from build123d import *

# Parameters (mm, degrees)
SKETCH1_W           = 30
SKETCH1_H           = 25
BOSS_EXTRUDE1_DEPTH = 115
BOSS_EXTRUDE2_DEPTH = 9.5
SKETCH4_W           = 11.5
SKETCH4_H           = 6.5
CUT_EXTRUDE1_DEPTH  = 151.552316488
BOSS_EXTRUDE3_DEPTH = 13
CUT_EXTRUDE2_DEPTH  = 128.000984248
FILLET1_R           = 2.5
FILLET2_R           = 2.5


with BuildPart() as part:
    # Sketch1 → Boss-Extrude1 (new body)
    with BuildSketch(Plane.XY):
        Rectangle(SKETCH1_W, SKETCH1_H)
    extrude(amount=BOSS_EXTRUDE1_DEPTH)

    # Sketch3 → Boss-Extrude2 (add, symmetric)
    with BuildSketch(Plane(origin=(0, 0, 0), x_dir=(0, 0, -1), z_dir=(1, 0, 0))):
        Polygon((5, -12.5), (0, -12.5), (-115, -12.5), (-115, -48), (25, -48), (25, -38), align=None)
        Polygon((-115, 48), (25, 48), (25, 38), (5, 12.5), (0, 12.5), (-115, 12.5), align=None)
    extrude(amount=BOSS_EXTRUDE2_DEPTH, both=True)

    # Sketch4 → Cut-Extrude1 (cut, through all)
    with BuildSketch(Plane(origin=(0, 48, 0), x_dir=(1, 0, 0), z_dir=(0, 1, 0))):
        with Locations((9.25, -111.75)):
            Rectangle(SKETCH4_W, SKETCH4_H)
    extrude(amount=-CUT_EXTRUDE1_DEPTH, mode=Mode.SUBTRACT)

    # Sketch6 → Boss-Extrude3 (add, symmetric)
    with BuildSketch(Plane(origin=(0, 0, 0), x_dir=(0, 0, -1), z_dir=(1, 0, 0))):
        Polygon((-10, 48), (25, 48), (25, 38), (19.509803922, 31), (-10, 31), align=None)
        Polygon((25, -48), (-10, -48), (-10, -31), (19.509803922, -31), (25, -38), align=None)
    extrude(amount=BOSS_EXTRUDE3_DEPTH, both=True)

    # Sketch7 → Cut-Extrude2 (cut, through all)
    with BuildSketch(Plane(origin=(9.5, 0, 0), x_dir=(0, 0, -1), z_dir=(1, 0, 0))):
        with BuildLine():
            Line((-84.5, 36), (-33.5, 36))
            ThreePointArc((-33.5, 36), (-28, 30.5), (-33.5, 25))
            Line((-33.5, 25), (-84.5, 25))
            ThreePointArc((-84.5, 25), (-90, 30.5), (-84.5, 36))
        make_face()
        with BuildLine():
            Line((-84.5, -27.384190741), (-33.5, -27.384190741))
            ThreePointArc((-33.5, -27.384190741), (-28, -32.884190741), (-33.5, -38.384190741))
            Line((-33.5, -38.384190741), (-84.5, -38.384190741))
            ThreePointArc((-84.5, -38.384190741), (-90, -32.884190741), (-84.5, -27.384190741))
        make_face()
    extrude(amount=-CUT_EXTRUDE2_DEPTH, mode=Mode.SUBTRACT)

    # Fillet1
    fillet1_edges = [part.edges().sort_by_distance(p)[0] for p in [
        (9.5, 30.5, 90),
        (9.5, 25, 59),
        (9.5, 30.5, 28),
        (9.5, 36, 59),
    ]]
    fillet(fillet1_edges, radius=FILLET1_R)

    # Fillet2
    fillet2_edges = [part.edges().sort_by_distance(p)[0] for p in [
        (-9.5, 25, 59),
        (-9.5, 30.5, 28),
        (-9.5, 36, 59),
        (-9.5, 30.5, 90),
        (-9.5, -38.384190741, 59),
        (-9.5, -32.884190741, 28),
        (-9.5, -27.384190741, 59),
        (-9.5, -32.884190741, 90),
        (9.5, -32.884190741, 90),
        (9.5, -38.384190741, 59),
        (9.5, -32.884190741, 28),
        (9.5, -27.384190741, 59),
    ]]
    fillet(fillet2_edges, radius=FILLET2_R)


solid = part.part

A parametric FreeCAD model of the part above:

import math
import FreeCAD as App
import Part
import Sketcher

V = App.Vector


def edges_at(feature, points):
    """Names of the edges that pass closest to the given points."""
    edges = feature.Shape.Edges
    near = lambda p: min(range(len(edges)), key=lambda i: edges[i].distToShape(Part.Vertex(*p))[0])
    return sorted({f"Edge{near(p) + 1}" for p in points})

doc = App.newDocument("Part")
body = doc.addObject("PartDesign::Body", "Body")

# Sketch on XY plane
sketch1 = doc.addObject("Sketcher::SketchObject", "Sketch")
body.addObject(sketch1)
sketch1.AttachmentSupport = (doc.XY_Plane, [""])
sketch1.MapMode = "FlatFace"
sketch1.addGeometry(Part.LineSegment(V(-15, 12, 0), V(-15, -12, 0)), False)
sketch1.addGeometry(Part.LineSegment(V(-15, -12, 0), V(15, -12, 0)), False)
sketch1.addGeometry(Part.LineSegment(V(15, -12, 0), V(15, 12, 0)), False)
sketch1.addGeometry(Part.LineSegment(V(15, 12, 0), V(-15, 12, 0)), False)
sketch1.addConstraint(Sketcher.Constraint("Coincident", 0, 2, 1, 1))
sketch1.addConstraint(Sketcher.Constraint("Coincident", 1, 2, 2, 1))
sketch1.addConstraint(Sketcher.Constraint("Coincident", 2, 2, 3, 1))
sketch1.addConstraint(Sketcher.Constraint("Coincident", 3, 2, 0, 1))
sketch1.addConstraint(Sketcher.Constraint("Vertical", 0))
sketch1.addConstraint(Sketcher.Constraint("Horizontal", 1))
sketch1.addConstraint(Sketcher.Constraint("Vertical", 2))
sketch1.addConstraint(Sketcher.Constraint("Horizontal", 3))
sketch1.addConstraint(Sketcher.Constraint("Symmetric", 0, 2, 2, 2, -1, 1))
sketch1.addConstraint(Sketcher.Constraint("DistanceX", 1, 1, 1, 2, 30.0))
sketch1.addConstraint(Sketcher.Constraint("DistanceY", 0, 2, 0, 1, 25.0))
pad1 = doc.addObject("PartDesign::Pad", "Pad")
body.addObject(pad1)
pad1.Profile = sketch1
pad1.Length = 115

# Sketch on YZ plane
sketch2 = doc.addObject("Sketcher::SketchObject", "Sketch001")
body.addObject(sketch2)
sketch2.AttachmentSupport = (doc.YZ_Plane, [""])
sketch2.MapMode = "FlatFace"
sketch2.addGeometry(Part.LineSegment(V(-12, -5, 0), V(-12, 115, 0)), False)
sketch2.addGeometry(Part.LineSegment(V(-12, 115, 0), V(-48, 115, 0)), False)
sketch2.addGeometry(Part.LineSegment(V(-48, 115, 0), V(-48, -25, 0)), False)
sketch2.addGeometry(Part.LineSegment(V(-48, -25, 0), V(-38, -25, 0)), False)
sketch2.addGeometry(Part.LineSegment(V(-38, -25, 0), V(-12, -5, 0)), False)
sketch2.addGeometry(Part.LineSegment(V(48, -25, 0), V(48, 115, 0)), False)
sketch2.addGeometry(Part.LineSegment(V(48, 115, 0), V(12, 115, 0)), False)
sketch2.addGeometry(Part.LineSegment(V(12, 115, 0), V(12, -5, 0)), False)
sketch2.addGeometry(Part.LineSegment(V(12, -5, 0), V(38, -25, 0)), False)
sketch2.addGeometry(Part.LineSegment(V(38, -25, 0), V(48, -25, 0)), False)
sketch2.addConstraint(Sketcher.Constraint("Coincident", 0, 2, 1, 1))
sketch2.addConstraint(Sketcher.Constraint("Coincident", 1, 2, 2, 1))
sketch2.addConstraint(Sketcher.Constraint("Coincident", 2, 2, 3, 1))
sketch2.addConstraint(Sketcher.Constraint("Coincident", 3, 2, 4, 1))
sketch2.addConstraint(Sketcher.Constraint("Coincident", 4, 2, 0, 1))
sketch2.addConstraint(Sketcher.Constraint("Coincident", 5, 2, 6, 1))
sketch2.addConstraint(Sketcher.Constraint("Coincident", 6, 2, 7, 1))
sketch2.addConstraint(Sketcher.Constraint("Coincident", 7, 2, 8, 1))
sketch2.addConstraint(Sketcher.Constraint("Coincident", 8, 2, 9, 1))
sketch2.addConstraint(Sketcher.Constraint("Coincident", 9, 2, 5, 1))
sketch2.addConstraint(Sketcher.Constraint("Vertical", 0))
sketch2.addConstraint(Sketcher.Constraint("Horizontal", 1))
sketch2.addConstraint(Sketcher.Constraint("Vertical", 2))
sketch2.addConstraint(Sketcher.Constraint("Horizontal", 3))
sketch2.addConstraint(Sketcher.Constraint("Vertical", 5))
sketch2.addConstraint(Sketcher.Constraint("Horizontal", 6))
sketch2.addConstraint(Sketcher.Constraint("Vertical", 7))
sketch2.addConstraint(Sketcher.Constraint("Horizontal", 9))
sketch2.addConstraint(Sketcher.Constraint("Symmetric", 1, 2, 5, 2, -2))
sketch2.addConstraint(Sketcher.Constraint("Symmetric", 4, 2, 7, 2, -2))
sketch2.addConstraint(Sketcher.Constraint("Symmetric", 3, 2, 8, 2, -2))
sketch2.addConstraint(Sketcher.Constraint("DistanceX", 3, 1, 3, 2, 10.0))
sketch2.addConstraint(Sketcher.Constraint("DistanceY", 0, 1, 0, 2, 120.0))
sketch2.addConstraint(Sketcher.Constraint("DistanceY", 2, 2, 2, 1, 140.0))
sketch2.addConstraint(Sketcher.Constraint("DistanceX", 1, 2, 1, 1, 35.5))
sketch2.addConstraint(Sketcher.Constraint("DistanceY", -1, 1, 0, 2, 115.0))
sketch2.addConstraint(Sketcher.Constraint("DistanceX", 1, 2, -1, 1, 48.0))
pad2 = doc.addObject("PartDesign::Pad", "Pad001")
body.addObject(pad2)
pad2.Profile = sketch2
pad2.Length = 19
pad2.Midplane = True

# Sketch on XZ plane
sketch3 = doc.addObject("Sketcher::SketchObject", "Sketch002")
body.addObject(sketch3)
sketch3.AttachmentSupport = (doc.XZ_Plane, [""])
sketch3.MapMode = "FlatFace"
sketch3.AttachmentOffset = App.Placement(V(0, 0, -48), App.Rotation())
sketch3.addGeometry(Part.LineSegment(V(4, 108, 0), V(4, 115, 0)), False)
sketch3.addGeometry(Part.LineSegment(V(4, 115, 0), V(15, 115, 0)), False)
sketch3.addGeometry(Part.LineSegment(V(15, 115, 0), V(15, 108, 0)), False)
sketch3.addGeometry(Part.LineSegment(V(15, 108, 0), V(4, 108, 0)), False)
sketch3.addConstraint(Sketcher.Constraint("Coincident", 0, 2, 1, 1))
sketch3.addConstraint(Sketcher.Constraint("Coincident", 1, 2, 2, 1))
sketch3.addConstraint(Sketcher.Constraint("Coincident", 2, 2, 3, 1))
sketch3.addConstraint(Sketcher.Constraint("Coincident", 3, 2, 0, 1))
sketch3.addConstraint(Sketcher.Constraint("Vertical", 0))
sketch3.addConstraint(Sketcher.Constraint("Horizontal", 1))
sketch3.addConstraint(Sketcher.Constraint("Vertical", 2))
sketch3.addConstraint(Sketcher.Constraint("Horizontal", 3))
sketch3.addConstraint(Sketcher.Constraint("DistanceX", 1, 1, 1, 2, 11.5))
sketch3.addConstraint(Sketcher.Constraint("DistanceY", 0, 1, 0, 2, 6.5))
sketch3.addConstraint(Sketcher.Constraint("DistanceY", -1, 1, 0, 2, 115.0))
sketch3.addConstraint(Sketcher.Constraint("DistanceX", -1, 1, 1, 2, 15.0))
pocket1 = doc.addObject("PartDesign::Pocket", "Pocket")
body.addObject(pocket1)
pocket1.Profile = sketch3
pocket1.Type = "ThroughAll"
pocket1.Reversed = True

# Sketch on YZ plane
sketch4 = doc.addObject("Sketcher::SketchObject", "Sketch003")
body.addObject(sketch4)
sketch4.AttachmentSupport = (doc.YZ_Plane, [""])
sketch4.MapMode = "FlatFace"
sketch4.addGeometry(Part.LineSegment(V(48, -25, 0), V(48, 10, 0)), False)
sketch4.addGeometry(Part.LineSegment(V(48, 10, 0), V(31, 10, 0)), False)
sketch4.addGeometry(Part.LineSegment(V(31, 10, 0), V(31, -20, 0)), False)
sketch4.addGeometry(Part.LineSegment(V(31, -20, 0), V(38, -25, 0)), False)
sketch4.addGeometry(Part.LineSegment(V(38, -25, 0), V(48, -25, 0)), False)
sketch4.addGeometry(Part.LineSegment(V(-48, 10, 0), V(-48, -25, 0)), False)
sketch4.addGeometry(Part.LineSegment(V(-48, -25, 0), V(-38, -25, 0)), False)
sketch4.addGeometry(Part.LineSegment(V(-38, -25, 0), V(-31, -20, 0)), False)
sketch4.addGeometry(Part.LineSegment(V(-31, -20, 0), V(-31, 10, 0)), False)
sketch4.addGeometry(Part.LineSegment(V(-31, 10, 0), V(-48, 10, 0)), False)
sketch4.addConstraint(Sketcher.Constraint("Coincident", 0, 2, 1, 1))
sketch4.addConstraint(Sketcher.Constraint("Coincident", 1, 2, 2, 1))
sketch4.addConstraint(Sketcher.Constraint("Coincident", 2, 2, 3, 1))
sketch4.addConstraint(Sketcher.Constraint("Coincident", 3, 2, 4, 1))
sketch4.addConstraint(Sketcher.Constraint("Coincident", 4, 2, 0, 1))
sketch4.addConstraint(Sketcher.Constraint("Coincident", 5, 2, 6, 1))
sketch4.addConstraint(Sketcher.Constraint("Coincident", 6, 2, 7, 1))
sketch4.addConstraint(Sketcher.Constraint("Coincident", 7, 2, 8, 1))
sketch4.addConstraint(Sketcher.Constraint("Coincident", 8, 2, 9, 1))
sketch4.addConstraint(Sketcher.Constraint("Coincident", 9, 2, 5, 1))
sketch4.addConstraint(Sketcher.Constraint("Vertical", 0))
sketch4.addConstraint(Sketcher.Constraint("Horizontal", 1))
sketch4.addConstraint(Sketcher.Constraint("Vertical", 2))
sketch4.addConstraint(Sketcher.Constraint("Horizontal", 4))
sketch4.addConstraint(Sketcher.Constraint("Vertical", 5))
sketch4.addConstraint(Sketcher.Constraint("Horizontal", 6))
sketch4.addConstraint(Sketcher.Constraint("Vertical", 8))
sketch4.addConstraint(Sketcher.Constraint("Horizontal", 9))
sketch4.addConstraint(Sketcher.Constraint("Symmetric", 4, 2, 5, 2, -2))
sketch4.addConstraint(Sketcher.Constraint("Symmetric", 2, 2, 7, 2, -2))
sketch4.addConstraint(Sketcher.Constraint("Horizontal", 1, 2, 8, 2))
sketch4.addConstraint(Sketcher.Constraint("Equal", 4, 6))
sketch4.addConstraint(Sketcher.Constraint("DistanceX", 1, 2, 1, 1, 17.0))
sketch4.addConstraint(Sketcher.Constraint("DistanceX", 4, 1, 4, 2, 10.0))
sketch4.addConstraint(Sketcher.Constraint("DistanceY", 0, 1, 0, 2, 35.0))
sketch4.addConstraint(Sketcher.Constraint("DistanceX", -1, 1, 0, 2, 48.0))
sketch4.addConstraint(Sketcher.Constraint("DistanceY", -1, 1, 0, 2, 10.0))
sketch4.addConstraint(Sketcher.Constraint("DistanceY", 2, 2, 2, 1, 29.509804))
pad3 = doc.addObject("PartDesign::Pad", "Pad002")
body.addObject(pad3)
pad3.Profile = sketch4
pad3.Length = 26
pad3.Midplane = True

# Sketch on YZ plane
sketch5 = doc.addObject("Sketcher::SketchObject", "Sketch004")
body.addObject(sketch5)
sketch5.AttachmentSupport = (doc.YZ_Plane, [""])
sketch5.MapMode = "FlatFace"
sketch5.AttachmentOffset = App.Placement(V(0, 0, 9.5), App.Rotation())
sketch5.addGeometry(Part.LineSegment(V(36, 34, 0), V(36, 84, 0)), False)
sketch5.addGeometry(Part.ArcOfCircle(Part.Circle(V(30, 84, 0), V(0, 0, 1), 6), math.radians(0), math.radians(180)), False)
sketch5.addGeometry(Part.LineSegment(V(25, 84, 0), V(25, 34, 0)), False)
sketch5.addGeometry(Part.ArcOfCircle(Part.Circle(V(30, 34, 0), V(0, 0, 1), 6), math.radians(180), math.radians(360)), False)
sketch5.addGeometry(Part.LineSegment(V(-27, 34, 0), V(-27, 84, 0)), False)
sketch5.addGeometry(Part.ArcOfCircle(Part.Circle(V(-33, 84, 0), V(0, 0, 1), 6), math.radians(0), math.radians(180)), False)
sketch5.addGeometry(Part.LineSegment(V(-38, 84, 0), V(-38, 34, 0)), False)
sketch5.addGeometry(Part.ArcOfCircle(Part.Circle(V(-33, 34, 0), V(0, 0, 1), 6), math.radians(180), math.radians(360)), False)
sketch5.addConstraint(Sketcher.Constraint("Tangent", 0, 2, 1, 1))
sketch5.addConstraint(Sketcher.Constraint("Tangent", 1, 2, 2, 1))
sketch5.addConstraint(Sketcher.Constraint("Tangent", 2, 2, 3, 1))
sketch5.addConstraint(Sketcher.Constraint("Tangent", 3, 2, 0, 1))
sketch5.addConstraint(Sketcher.Constraint("Tangent", 4, 2, 5, 1))
sketch5.addConstraint(Sketcher.Constraint("Tangent", 5, 2, 6, 1))
sketch5.addConstraint(Sketcher.Constraint("Tangent", 6, 2, 7, 1))
sketch5.addConstraint(Sketcher.Constraint("Tangent", 7, 2, 4, 1))
sketch5.addConstraint(Sketcher.Constraint("Vertical", 0))
sketch5.addConstraint(Sketcher.Constraint("Vertical", 2))
sketch5.addConstraint(Sketcher.Constraint("Vertical", 4))
sketch5.addConstraint(Sketcher.Constraint("Vertical", 6))
sketch5.addConstraint(Sketcher.Constraint("Equal", 3, 5))
sketch5.addConstraint(Sketcher.Constraint("Horizontal", 1, 3, 5, 3))
sketch5.addConstraint(Sketcher.Constraint("Horizontal", 3, 3, 7, 3))
sketch5.addConstraint(Sketcher.Constraint("Radius", 1, 5.5))
sketch5.addConstraint(Sketcher.Constraint("DistanceY", 0, 1, 0, 2, 51.0))
sketch5.addConstraint(Sketcher.Constraint("DistanceX", -1, 1, 0, 2, 36.0))
sketch5.addConstraint(Sketcher.Constraint("DistanceY", -1, 1, 1, 3, 84.5))
sketch5.addConstraint(Sketcher.Constraint("DistanceX", 5, 3, -1, 1, 32.884191))
pocket2 = doc.addObject("PartDesign::Pocket", "Pocket001")
body.addObject(pocket2)
pocket2.Profile = sketch5
pocket2.Type = "ThroughAll"
doc.recompute()

fillet = doc.addObject("PartDesign::Fillet", "Fillet")
body.addObject(fillet)
fillet.Base = (pocket2, edges_at(pocket2, [
    (9.5, 30.5, 90),
    (9.5, 25, 59),
    (9.5, 30.5, 28),
    (9.5, 36, 59),
]))
fillet.Radius = 2.5
doc.recompute()

fillet2 = doc.addObject("PartDesign::Fillet", "Fillet001")
body.addObject(fillet2)
fillet2.Base = (fillet, edges_at(fillet, [
    (-9.5, 25, 59),
    (-9.5, 30.5, 28),
    (-9.5, 36, 59),
    (-9.5, 30.5, 90),
    (-9.5, -38.384, 59),
    (-9.5, -32.884, 28),
    (-9.5, -27.384, 59),
    (-9.5, -32.884, 90),
    (9.5, -32.884, 90),
    (9.5, -38.384, 59),
    (9.5, -32.884, 28),
    (9.5, -27.384, 59),
]))
fillet2.Radius = 2.5

doc.recompute()
